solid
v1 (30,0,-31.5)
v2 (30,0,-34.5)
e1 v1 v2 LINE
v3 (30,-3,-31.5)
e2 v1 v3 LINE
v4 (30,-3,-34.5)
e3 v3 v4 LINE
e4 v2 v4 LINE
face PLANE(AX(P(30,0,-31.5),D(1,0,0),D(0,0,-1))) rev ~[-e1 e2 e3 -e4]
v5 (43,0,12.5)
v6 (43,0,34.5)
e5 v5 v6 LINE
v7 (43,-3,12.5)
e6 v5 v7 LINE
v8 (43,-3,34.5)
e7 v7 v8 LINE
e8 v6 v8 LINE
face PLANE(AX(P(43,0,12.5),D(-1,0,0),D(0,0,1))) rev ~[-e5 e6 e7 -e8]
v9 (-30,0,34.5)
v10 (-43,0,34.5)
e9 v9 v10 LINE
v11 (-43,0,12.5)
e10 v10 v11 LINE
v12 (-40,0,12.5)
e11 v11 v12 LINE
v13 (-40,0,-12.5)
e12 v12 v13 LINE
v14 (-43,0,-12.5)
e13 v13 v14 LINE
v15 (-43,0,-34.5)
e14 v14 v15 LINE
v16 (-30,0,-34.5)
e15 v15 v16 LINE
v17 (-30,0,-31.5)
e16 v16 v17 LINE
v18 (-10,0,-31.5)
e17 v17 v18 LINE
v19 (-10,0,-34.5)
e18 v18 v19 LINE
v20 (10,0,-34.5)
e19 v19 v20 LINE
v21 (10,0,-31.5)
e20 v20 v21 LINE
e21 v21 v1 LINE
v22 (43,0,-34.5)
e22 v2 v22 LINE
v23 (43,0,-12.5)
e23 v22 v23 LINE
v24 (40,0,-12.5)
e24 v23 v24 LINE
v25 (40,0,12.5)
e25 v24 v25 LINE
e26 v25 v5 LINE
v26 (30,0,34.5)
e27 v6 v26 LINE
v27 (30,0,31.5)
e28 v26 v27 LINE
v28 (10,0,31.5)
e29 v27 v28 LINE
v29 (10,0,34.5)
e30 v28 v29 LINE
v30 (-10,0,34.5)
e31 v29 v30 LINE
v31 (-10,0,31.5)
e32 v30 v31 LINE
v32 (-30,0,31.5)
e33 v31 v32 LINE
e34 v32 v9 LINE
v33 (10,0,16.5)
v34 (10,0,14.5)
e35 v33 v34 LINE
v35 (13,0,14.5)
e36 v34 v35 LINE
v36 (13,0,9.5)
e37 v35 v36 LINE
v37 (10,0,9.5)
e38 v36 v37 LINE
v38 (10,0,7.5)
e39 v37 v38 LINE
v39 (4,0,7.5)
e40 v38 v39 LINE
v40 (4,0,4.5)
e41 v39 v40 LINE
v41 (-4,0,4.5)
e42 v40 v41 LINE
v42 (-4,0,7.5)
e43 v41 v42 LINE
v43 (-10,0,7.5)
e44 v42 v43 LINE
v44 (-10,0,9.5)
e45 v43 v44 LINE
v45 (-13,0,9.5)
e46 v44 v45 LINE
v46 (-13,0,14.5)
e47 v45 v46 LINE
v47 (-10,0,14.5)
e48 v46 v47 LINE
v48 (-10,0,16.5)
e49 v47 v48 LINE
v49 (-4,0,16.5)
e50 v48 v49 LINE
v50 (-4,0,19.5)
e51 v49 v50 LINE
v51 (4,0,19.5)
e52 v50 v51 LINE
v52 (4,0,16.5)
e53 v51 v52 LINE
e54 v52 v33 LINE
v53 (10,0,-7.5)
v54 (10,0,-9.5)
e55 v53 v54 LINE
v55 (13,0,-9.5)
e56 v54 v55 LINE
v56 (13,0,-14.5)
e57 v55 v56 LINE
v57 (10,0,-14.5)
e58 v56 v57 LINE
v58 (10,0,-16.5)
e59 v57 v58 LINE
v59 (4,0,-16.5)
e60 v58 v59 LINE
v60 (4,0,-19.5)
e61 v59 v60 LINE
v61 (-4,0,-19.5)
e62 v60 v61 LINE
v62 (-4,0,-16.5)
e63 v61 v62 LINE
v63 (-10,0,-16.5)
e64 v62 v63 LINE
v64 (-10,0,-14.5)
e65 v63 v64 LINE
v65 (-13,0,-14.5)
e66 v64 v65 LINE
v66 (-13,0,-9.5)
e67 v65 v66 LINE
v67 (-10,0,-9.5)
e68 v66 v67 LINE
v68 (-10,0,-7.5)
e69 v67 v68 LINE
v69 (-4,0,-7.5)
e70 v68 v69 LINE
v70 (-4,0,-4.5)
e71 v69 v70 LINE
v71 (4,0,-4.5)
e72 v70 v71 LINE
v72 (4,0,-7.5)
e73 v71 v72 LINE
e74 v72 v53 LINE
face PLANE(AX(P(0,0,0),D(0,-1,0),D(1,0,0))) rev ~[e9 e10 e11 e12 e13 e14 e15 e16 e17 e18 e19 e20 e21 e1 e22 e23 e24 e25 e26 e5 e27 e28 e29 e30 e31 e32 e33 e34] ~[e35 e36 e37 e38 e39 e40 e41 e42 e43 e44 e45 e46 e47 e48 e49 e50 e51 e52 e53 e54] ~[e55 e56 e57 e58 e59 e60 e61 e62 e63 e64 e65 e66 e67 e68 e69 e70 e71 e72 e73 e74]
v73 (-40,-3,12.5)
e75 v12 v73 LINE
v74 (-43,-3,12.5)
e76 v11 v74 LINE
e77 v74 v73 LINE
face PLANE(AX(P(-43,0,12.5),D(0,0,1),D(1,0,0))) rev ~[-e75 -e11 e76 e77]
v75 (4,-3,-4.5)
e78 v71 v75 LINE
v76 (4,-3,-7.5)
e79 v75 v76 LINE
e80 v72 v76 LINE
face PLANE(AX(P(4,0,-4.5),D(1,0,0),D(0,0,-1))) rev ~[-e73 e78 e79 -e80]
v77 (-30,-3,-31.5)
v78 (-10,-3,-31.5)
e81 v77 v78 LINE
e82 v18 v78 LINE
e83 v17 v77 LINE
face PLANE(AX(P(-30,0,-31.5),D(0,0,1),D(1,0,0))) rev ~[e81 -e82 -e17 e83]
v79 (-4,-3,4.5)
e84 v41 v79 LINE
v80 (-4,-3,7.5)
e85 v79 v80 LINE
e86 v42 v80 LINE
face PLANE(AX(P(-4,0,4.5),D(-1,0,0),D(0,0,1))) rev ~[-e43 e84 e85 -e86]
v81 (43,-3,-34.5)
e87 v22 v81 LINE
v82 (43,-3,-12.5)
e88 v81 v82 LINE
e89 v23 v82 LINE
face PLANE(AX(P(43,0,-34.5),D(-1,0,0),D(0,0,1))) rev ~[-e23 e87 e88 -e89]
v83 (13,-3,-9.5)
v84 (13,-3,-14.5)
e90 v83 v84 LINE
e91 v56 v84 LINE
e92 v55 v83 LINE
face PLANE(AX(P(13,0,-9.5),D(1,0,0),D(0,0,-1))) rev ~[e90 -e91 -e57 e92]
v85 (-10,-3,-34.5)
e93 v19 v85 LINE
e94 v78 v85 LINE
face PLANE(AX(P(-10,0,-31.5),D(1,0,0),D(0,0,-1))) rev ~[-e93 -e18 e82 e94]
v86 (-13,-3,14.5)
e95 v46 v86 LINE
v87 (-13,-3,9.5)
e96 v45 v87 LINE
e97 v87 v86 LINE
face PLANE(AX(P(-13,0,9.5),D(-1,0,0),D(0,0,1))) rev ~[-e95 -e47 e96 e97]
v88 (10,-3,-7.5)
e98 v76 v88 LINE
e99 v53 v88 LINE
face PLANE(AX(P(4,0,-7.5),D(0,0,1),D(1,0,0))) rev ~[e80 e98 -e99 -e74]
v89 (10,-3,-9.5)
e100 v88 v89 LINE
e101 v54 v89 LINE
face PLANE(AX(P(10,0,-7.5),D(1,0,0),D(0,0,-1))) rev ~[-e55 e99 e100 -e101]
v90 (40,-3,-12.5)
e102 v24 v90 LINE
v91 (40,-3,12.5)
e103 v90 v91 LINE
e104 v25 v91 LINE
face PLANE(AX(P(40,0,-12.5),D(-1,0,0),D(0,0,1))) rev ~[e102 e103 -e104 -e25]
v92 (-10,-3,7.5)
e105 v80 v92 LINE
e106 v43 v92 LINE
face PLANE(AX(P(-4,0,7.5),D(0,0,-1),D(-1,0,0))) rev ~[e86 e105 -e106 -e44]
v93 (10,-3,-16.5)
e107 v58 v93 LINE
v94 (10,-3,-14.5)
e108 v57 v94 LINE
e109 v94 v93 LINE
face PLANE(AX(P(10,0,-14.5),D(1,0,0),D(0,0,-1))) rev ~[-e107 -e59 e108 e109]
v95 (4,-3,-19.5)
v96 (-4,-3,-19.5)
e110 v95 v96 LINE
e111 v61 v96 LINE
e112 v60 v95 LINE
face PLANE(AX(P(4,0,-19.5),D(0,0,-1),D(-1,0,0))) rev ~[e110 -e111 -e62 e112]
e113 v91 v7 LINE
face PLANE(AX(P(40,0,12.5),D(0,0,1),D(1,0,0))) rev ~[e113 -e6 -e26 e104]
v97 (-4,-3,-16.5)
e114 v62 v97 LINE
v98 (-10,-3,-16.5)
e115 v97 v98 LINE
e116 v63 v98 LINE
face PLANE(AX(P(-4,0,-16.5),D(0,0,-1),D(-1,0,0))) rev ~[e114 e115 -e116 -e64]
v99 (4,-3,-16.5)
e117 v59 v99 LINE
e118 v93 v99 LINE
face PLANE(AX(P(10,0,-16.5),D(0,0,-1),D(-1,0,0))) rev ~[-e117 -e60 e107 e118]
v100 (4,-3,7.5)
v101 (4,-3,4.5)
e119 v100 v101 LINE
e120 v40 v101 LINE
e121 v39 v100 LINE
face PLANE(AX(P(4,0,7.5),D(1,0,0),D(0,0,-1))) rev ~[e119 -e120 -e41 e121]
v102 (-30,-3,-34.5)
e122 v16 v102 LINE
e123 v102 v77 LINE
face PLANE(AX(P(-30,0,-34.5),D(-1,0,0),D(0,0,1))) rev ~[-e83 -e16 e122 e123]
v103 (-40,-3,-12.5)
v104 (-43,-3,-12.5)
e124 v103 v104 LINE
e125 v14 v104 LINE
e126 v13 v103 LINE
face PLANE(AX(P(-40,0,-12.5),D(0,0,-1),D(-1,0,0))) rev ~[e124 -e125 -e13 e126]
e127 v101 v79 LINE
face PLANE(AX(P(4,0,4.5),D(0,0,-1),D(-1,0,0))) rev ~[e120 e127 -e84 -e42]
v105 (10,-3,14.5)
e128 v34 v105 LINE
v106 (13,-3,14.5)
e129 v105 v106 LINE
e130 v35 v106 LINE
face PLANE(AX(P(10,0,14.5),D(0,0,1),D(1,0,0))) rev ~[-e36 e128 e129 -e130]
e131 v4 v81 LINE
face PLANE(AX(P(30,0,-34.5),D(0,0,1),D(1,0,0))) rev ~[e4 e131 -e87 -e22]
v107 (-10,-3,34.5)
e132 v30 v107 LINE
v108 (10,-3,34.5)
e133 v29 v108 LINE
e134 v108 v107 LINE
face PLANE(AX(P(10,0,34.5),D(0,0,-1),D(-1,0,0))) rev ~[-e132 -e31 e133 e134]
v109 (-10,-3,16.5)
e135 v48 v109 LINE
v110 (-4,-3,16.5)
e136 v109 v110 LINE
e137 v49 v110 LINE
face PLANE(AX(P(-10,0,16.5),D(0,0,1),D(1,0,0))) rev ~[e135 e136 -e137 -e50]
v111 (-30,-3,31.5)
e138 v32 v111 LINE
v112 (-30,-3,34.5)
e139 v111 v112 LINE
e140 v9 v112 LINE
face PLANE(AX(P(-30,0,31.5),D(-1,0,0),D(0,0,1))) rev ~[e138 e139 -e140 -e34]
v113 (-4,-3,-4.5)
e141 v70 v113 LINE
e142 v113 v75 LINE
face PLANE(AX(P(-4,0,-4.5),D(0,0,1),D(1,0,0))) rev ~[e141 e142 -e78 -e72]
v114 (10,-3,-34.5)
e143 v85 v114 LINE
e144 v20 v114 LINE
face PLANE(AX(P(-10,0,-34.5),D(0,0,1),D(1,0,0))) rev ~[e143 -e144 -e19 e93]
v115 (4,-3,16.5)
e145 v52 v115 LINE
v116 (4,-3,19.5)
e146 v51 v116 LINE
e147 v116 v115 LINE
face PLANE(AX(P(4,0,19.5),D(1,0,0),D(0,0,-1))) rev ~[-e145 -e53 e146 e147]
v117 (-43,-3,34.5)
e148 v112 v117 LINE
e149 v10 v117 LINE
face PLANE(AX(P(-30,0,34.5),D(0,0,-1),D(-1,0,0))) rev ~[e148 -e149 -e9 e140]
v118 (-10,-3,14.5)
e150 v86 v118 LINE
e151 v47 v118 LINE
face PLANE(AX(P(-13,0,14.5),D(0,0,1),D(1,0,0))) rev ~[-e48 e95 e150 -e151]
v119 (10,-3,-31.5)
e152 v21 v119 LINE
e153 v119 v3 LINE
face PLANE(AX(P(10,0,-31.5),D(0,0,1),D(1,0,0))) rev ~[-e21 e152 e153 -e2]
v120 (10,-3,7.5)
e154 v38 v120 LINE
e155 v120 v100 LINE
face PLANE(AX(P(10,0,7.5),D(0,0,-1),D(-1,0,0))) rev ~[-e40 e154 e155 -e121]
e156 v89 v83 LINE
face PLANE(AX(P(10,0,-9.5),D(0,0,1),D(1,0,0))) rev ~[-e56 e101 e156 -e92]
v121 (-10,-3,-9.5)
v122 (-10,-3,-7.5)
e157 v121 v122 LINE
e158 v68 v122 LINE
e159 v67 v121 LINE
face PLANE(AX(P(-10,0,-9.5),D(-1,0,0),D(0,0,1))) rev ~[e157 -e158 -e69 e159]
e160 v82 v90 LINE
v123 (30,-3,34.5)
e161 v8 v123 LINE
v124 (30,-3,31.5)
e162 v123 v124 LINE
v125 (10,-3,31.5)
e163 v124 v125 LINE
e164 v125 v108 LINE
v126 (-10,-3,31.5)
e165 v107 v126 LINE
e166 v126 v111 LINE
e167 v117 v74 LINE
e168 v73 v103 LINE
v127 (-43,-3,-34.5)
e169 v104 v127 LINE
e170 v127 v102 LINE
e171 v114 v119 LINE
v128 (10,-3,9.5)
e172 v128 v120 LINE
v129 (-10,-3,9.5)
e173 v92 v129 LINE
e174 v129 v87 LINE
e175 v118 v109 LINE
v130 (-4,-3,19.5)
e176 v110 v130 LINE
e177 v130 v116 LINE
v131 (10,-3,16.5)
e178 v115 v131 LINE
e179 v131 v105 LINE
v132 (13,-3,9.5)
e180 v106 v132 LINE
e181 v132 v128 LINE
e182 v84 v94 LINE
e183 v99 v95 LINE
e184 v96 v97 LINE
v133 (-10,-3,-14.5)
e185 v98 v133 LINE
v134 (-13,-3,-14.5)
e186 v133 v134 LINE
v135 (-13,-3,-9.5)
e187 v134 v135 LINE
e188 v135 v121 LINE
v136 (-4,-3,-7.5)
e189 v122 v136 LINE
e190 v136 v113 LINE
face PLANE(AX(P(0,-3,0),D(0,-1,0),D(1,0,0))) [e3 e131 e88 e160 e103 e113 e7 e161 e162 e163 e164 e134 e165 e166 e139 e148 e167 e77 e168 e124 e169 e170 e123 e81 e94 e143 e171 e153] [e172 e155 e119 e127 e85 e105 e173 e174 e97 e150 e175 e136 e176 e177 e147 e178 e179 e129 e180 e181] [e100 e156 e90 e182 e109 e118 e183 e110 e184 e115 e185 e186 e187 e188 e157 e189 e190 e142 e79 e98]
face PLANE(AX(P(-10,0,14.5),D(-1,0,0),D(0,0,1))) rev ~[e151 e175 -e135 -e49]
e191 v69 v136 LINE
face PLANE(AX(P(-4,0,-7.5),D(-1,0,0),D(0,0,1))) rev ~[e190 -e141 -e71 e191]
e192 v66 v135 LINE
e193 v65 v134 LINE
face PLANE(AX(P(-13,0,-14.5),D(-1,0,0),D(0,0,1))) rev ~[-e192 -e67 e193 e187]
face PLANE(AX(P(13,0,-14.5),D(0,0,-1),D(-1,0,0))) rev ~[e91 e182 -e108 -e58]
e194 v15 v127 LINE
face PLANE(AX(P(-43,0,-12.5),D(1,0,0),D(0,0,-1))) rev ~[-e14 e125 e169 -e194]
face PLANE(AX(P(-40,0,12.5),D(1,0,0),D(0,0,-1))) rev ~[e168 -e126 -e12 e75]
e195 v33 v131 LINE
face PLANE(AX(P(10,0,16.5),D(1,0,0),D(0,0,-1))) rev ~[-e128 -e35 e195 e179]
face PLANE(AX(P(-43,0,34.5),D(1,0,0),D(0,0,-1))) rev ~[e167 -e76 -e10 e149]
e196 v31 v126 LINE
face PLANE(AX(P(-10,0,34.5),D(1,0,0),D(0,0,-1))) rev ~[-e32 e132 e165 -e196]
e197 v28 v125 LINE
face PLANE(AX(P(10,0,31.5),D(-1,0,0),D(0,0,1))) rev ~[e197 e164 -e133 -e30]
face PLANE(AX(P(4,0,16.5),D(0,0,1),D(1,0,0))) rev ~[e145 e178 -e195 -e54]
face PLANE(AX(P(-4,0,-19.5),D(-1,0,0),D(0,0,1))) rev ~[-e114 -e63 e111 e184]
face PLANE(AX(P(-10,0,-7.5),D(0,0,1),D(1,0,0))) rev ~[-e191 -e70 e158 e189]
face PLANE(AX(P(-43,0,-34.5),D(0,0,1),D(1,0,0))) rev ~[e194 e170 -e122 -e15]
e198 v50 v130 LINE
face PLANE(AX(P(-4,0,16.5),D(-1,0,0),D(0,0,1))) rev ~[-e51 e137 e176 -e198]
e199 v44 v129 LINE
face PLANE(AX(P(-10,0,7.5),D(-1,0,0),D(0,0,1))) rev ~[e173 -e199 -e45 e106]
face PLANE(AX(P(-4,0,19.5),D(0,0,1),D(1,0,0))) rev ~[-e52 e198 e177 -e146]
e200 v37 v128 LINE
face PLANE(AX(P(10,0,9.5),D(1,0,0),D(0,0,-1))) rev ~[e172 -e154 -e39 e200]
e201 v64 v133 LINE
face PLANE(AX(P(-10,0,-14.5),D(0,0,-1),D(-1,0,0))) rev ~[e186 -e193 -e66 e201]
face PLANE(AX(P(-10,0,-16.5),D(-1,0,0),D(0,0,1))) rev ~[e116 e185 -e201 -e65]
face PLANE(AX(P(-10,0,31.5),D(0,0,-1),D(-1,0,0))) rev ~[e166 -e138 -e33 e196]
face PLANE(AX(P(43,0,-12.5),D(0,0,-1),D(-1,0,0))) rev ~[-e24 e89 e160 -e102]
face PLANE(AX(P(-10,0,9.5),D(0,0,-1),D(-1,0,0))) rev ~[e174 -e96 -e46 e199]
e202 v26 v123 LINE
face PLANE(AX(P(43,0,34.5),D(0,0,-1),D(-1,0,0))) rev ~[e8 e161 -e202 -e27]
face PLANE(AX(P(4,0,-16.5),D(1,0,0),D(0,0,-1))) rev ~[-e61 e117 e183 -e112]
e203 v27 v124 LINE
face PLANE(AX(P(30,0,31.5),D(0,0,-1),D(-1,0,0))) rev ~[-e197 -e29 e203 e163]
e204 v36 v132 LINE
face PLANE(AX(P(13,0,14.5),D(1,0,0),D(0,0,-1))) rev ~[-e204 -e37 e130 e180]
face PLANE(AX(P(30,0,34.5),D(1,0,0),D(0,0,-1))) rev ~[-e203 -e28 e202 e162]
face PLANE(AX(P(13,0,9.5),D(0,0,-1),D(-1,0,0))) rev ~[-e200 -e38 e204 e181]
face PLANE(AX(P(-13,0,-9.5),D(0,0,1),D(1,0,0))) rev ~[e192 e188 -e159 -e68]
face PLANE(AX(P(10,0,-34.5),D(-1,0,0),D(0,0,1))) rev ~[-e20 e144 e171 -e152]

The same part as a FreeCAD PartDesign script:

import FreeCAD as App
import Part
import Sketcher
from FreeCAD import Vector
Q = App.Units.Quantity


def add_polygon(sketch, points):
    """Adds a closed chain of lines whose ends are joined by coincident constraints."""
    first, n = sketch.GeometryCount, len(points)
    for a, b in zip(points, points[1:] + points[:1]):
        sketch.addGeometry(Part.LineSegment(App.Vector(*a, 0), App.Vector(*b, 0)), False)
    for i in range(n):
        sketch.addConstraint(Sketcher.Constraint("Coincident", first + i, 2, first + (i + 1) % n, 1))

doc = App.newDocument("Part")
body = doc.addObject("PartDesign::Body", "Body")

# Sketch on XZ plane
sketch1 = body.newObject("Sketcher::SketchObject", "Sketch")
sketch1.AttachmentSupport = (doc.getObject("XZ_Plane"), [""])
sketch1.MapMode = "FlatFace"
add_polygon(sketch1, [(10, 34.5), (-10, 34.5), (-10, 31.5), (-30, 31.5), (-30, 34.5), (-43, 34.5), (-43, 12.5), (-40, 12.5), (-40, -12.5), (-43, -12.5), (-43, -34.5), (-30, -34.5), (-30, -31.5), (-10, -31.5), (-10, -34.5), (10, -34.5), (10, -31.5), (30, -31.5), (30, -34.5), (43, -34.5), (43, -12.5), (40, -12.5), (40, 12.5), (43, 12.5), (43, 34.5), (30, 34.5), (30, 31.5), (10, 31.5)])  # lines 0-27
add_polygon(sketch1, [(-10, -14.5), (-13, -14.5), (-13, -9.5), (-10, -9.5), (-10, -7.5), (-4, -7.5), (-4, -4.5), (4, -4.5), (4, -7.5), (10, -7.5), (10, -9.5), (13, -9.5), (13, -14.5), (10, -14.5), (10, -16.5), (4, -16.5), (4, -19.5), (-4, -19.5), (-4, -16.5), (-10, -16.5)])  # lines 28-47
add_polygon(sketch1, [(4, 19.5), (4, 16.5), (10, 16.5), (10, 14.5), (13, 14.5), (13, 9.5), (10, 9.5), (10, 7.5), (4, 7.5), (4, 4.5), (-4, 4.5), (-4, 7.5), (-10, 7.5), (-10, 9.5), (-13, 9.5), (-13, 14.5), (-10, 14.5), (-10, 16.5), (-4, 16.5), (-4, 19.5)])  # lines 48-67
sketch1.addConstraint([
    Sketcher.Constraint("Horizontal", 0),
    Sketcher.Constraint("Vertical", 1),
    Sketcher.Constraint("Horizontal", 2),
    Sketcher.Constraint("Vertical", 3),
    Sketcher.Constraint("Horizontal", 4),
    Sketcher.Constraint("Vertical", 5),
    Sketcher.Constraint("Horizontal", 6),
    Sketcher.Constraint("Vertical", 7),
    Sketcher.Constraint("Horizontal", 8),
    Sketcher.Constraint("Vertical", 9),
    Sketcher.Constraint("Horizontal", 10),
    Sketcher.Constraint("Vertical", 11),
    Sketcher.Constraint("Horizontal", 12),
    Sketcher.Constraint("Vertical", 13),
    Sketcher.Constraint("Horizontal", 14),
    Sketcher.Constraint("Vertical", 15),
    Sketcher.Constraint("Horizontal", 16),
    Sketcher.Constraint("Vertical", 17),
    Sketcher.Constraint("Horizontal", 18),
    Sketcher.Constraint("Vertical", 19),
    Sketcher.Constraint("Horizontal", 20),
    Sketcher.Constraint("Vertical", 21),
    Sketcher.Constraint("Horizontal", 22),
    Sketcher.Constraint("Vertical", 23),
    Sketcher.Constraint("Horizontal", 24),
    Sketcher.Constraint("Vertical", 25),
    Sketcher.Constraint("Horizontal", 26),
    Sketcher.Constraint("Vertical", 27),
    Sketcher.Constraint("Horizontal", 28),
    Sketcher.Constraint("Vertical", 29),
    Sketcher.Constraint("Horizontal", 30),
    Sketcher.Constraint("Vertical", 31),
    Sketcher.Constraint("Horizontal", 32),
    Sketcher.Constraint("Vertical", 33),
    Sketcher.Constraint("Horizontal", 34),
    Sketcher.Constraint("Vertical", 35),
    Sketcher.Constraint("Horizontal", 36),
    Sketcher.Constraint("Vertical", 37),
    Sketcher.Constraint("Horizontal", 38),
    Sketcher.Constraint("Vertical", 39),
    Sketcher.Constraint("Horizontal", 40),
    Sketcher.Constraint("Vertical", 41),
    Sketcher.Constraint("Horizontal", 42),
    Sketcher.Constraint("Vertical", 43),
    Sketcher.Constraint("Horizontal", 44),
    Sketcher.Constraint("Vertical", 45),
    Sketcher.Constraint("Horizontal", 46),
    Sketcher.Constraint("Vertical", 47),
    Sketcher.Constraint("Vertical", 48),
    Sketcher.Constraint("Horizontal", 49),
    Sketcher.Constraint("Vertical", 50),
    Sketcher.Constraint("Horizontal", 51),
    Sketcher.Constraint("Vertical", 52),
    Sketcher.Constraint("Horizontal", 53),
    Sketcher.Constraint("Vertical", 54),
    Sketcher.Constraint("Horizontal", 55),
    Sketcher.Constraint("Vertical", 56),
    Sketcher.Constraint("Horizontal", 57),
    Sketcher.Constraint("Vertical", 58),
    Sketcher.Constraint("Horizontal", 59),
    Sketcher.Constraint("Vertical", 60),
    Sketcher.Constraint("Horizontal", 61),
    Sketcher.Constraint("Vertical", 62),
    Sketcher.Constraint("Horizontal", 63),
    Sketcher.Constraint("Vertical", 64),
    Sketcher.Constraint("Horizontal", 65),
    Sketcher.Constraint("Vertical", 66),
    Sketcher.Constraint("Horizontal", 67),
    Sketcher.Constraint("Symmetric", 0, 2, 14, 2, -1, 1),
    Sketcher.Constraint("Symmetric", 2, 2, 16, 2, -1, 1),
    Sketcher.Constraint("Symmetric", 4, 2, 18, 2, -1, 1),
    Sketcher.Constraint("Symmetric", 6, 2, 20, 2, -1, 1),
    Sketcher.Constraint("Symmetric", 8, 2, 22, 2, -1, 1),
    Sketcher.Constraint("Symmetric", 10, 2, 24, 2, -1, 1),
    Sketcher.Constraint("Symmetric", 12, 2, 26, 2, -1, 1),
    Sketcher.Constraint("Symmetric", 45, 2, 48, 2, -1, 1),
    Sketcher.Constraint("Symmetric", 47, 2, 50, 2, -1, 1),
    Sketcher.Constraint("Symmetric", 29, 2, 52, 2, -1, 1),
    Sketcher.Constraint("Symmetric", 31, 2, 54, 2, -1, 1),
    Sketcher.Constraint("Symmetric", 33, 2, 56, 2, -1, 1),
    Sketcher.Constraint("Symmetric", 35, 2, 58, 2, -1, 1),
    Sketcher.Constraint("Symmetric", 37, 2, 60, 2, -1, 1),
    Sketcher.Constraint("Symmetric", 39, 2, 62, 2, -1, 1),
    Sketcher.Constraint("Symmetric", 41, 2, 64, 2, -1, 1),
    Sketcher.Constraint("Symmetric", 43, 2, 66, 2, -1, 1),
    Sketcher.Constraint("Symmetric", 12, 2, 15, 2, -2),
    Sketcher.Constraint("Symmetric", 10, 2, 17, 2, -2),
    Sketcher.Constraint("Symmetric", 8, 2, 19, 2, -2),
    Sketcher.Constraint("Symmetric", 32, 2, 35, 2, -2),
    Sketcher.Constraint("Symmetric", 30, 2, 37, 2, -2),
    Sketcher.Constraint("Symmetric", 28, 2, 39, 2, -2),
    Sketcher.Constraint("Symmetric", 42, 2, 45, 2, -2),
    Sketcher.Constraint("Horizontal", 0, 2, 3, 2),
    Sketcher.Constraint("Vertical", 13, 2, 30, 2),
    Sketcher.Constraint("Vertical", 37, 2, 40, 2),
    Sketcher.Constraint("Vertical", 35, 2, 42, 2),
    Sketcher.Constraint("Vertical", 31, 2, 46, 2),
    Sketcher.Constraint("Equal", 0, 2),
    Sketcher.Constraint("Equal", 22, 28),
    Sketcher.Constraint("Equal", 63, 1),
    Sketcher.Constraint("Equal", 27, 33),
    Sketcher.Constraint("Equal", 37, 41),
    Sketcher.Constraint("Equal", 35, 43),
    Sketcher.Constraint("DistanceX", 0, 2, 0, 1, Q("20 mm")),
    Sketcher.Constraint("DistanceX", 4, 2, 4, 1, Q("13 mm")),
    Sketcher.Constraint("DistanceX", 6, 1, 6, 2, Q("3 mm")),
    Sketcher.Constraint("DistanceX", 32, 1, 32, 2, Q("6 mm")),
    Sketcher.Constraint("DistanceY", 5, 2, 5, 1, Q("22 mm")),
    Sketcher.Constraint("DistanceY", 7, 2, 7, 1, Q("25 mm")),
    Sketcher.Constraint("DistanceY", 29, 1, 29, 2, Q("5 mm")),
    Sketcher.Constraint("DistanceY", 31, 1, 31, 2, Q("2 mm")),
    Sketcher.Constraint("DistanceY", 28, 2, -1, 1, Q("14.5 mm")),
])
pad1 = body.newObject("PartDesign::Pad", "Pad")
pad1.Profile = sketch1
pad1.Length = 3

doc.recompute()
